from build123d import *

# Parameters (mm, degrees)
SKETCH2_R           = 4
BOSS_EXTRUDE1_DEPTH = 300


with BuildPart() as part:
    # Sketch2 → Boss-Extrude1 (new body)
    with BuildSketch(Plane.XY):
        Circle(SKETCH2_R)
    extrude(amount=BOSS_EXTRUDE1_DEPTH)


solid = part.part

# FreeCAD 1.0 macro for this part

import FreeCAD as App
import Part
import Sketcher

V = App.Vector

doc = App.newDocument("Part")
body = doc.addObject("PartDesign::Body", "Body")

# Sketch on XY plane
sketch1 = body.newObject("Sketcher::SketchObject", "Sketch")
sketch1.AttachmentSupport = (doc.getObject("XY_Plane"), [""])
sketch1.MapMode = "FlatFace"
sketch1.addGeometry(Part.Circle(V(0, 0, 0), V(0, 0, 1), 4), False)
sketch1.addConstraint([
    Sketcher.Constraint("Coincident", 0, 3, -1, 1),
    Sketcher.Constraint("Diameter", 0, 8.0),
])
pad1 = body.newObject("PartDesign::Pad", "Pad")
pad1.Profile = sketch1
pad1.Length = 300

doc.recompute()
